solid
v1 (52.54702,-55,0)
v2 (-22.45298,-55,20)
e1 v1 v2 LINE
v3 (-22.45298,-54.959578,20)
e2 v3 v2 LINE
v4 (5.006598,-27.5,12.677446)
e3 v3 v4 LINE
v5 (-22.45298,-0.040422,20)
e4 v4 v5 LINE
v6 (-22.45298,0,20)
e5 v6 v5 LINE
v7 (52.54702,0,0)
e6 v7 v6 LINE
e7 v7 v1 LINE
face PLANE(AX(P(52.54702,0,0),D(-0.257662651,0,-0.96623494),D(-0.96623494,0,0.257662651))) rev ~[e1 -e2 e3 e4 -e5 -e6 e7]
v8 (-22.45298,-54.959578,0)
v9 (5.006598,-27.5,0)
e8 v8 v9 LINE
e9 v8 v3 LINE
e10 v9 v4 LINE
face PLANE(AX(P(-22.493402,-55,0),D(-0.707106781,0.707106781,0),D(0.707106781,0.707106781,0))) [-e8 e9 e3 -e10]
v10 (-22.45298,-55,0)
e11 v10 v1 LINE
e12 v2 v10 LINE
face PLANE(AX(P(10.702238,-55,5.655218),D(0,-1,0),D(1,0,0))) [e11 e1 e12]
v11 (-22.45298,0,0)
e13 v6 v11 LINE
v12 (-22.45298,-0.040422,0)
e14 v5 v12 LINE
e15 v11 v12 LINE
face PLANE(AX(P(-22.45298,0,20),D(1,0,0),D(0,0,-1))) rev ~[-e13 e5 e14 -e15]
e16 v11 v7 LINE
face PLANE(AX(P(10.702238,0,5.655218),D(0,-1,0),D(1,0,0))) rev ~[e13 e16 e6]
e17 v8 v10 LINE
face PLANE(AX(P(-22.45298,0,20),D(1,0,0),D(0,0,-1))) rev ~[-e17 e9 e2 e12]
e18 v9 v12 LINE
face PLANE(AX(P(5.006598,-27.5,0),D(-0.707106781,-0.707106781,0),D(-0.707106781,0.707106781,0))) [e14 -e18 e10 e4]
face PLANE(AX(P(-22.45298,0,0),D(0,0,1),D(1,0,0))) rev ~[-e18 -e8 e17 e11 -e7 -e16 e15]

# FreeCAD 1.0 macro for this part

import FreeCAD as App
import Part
import Sketcher
from FreeCAD import Vector
Q = App.Units.Quantity


def add_polygon(sketch, points):
    """Adds a closed chain of lines whose ends are joined by coincident constraints."""
    first, n = sketch.GeometryCount, len(points)
    for a, b in zip(points, points[1:] + points[:1]):
        sketch.addGeometry(Part.LineSegment(App.Vector(*a, 0), App.Vector(*b, 0)), False)
    for i in range(n):
        sketch.addConstraint(Sketcher.Constraint("Coincident", first + i, 2, first + (i + 1) % n, 1))

doc = App.newDocument("Part")
body = doc.addObject("PartDesign::Body", "Body")

# Sketch on XZ plane
sketch1 = body.newObject("Sketcher::SketchObject", "Sketch")
sketch1.AttachmentSupport = (doc.getObject("XZ_Plane"), [""])
sketch1.MapMode = "FlatFace"
add_polygon(sketch1, [(-22.45298, 20), (-22.45298, 0), (52.54702, 0)])  # lines 0-2
sketch1.addConstraint([
    Sketcher.Constraint("Vertical", 0),
    Sketcher.Constraint("Horizontal", 1),
    Sketcher.Constraint("PointOnObject", 0, 2, -1),
    Sketcher.Constraint("DistanceX", 1, 1, 1, 2, Q("75 mm")),
    Sketcher.Constraint("DistanceY", 0, 2, 0, 1, Q("20 mm")),
    Sketcher.Constraint("DistanceX", 0, 2, -1, 1, Q("22.45298 mm")),
])
pad1 = body.newObject("PartDesign::Pad", "Pad")
pad1.Profile = sketch1
pad1.Length = 55

# Sketch on XY plane
sketch2 = body.newObject("Sketcher::SketchObject", "Sketch001")
sketch2.AttachmentSupport = (doc.getObject("XY_Plane"), [""])
sketch2.MapMode = "FlatFace"
add_polygon(sketch2, [(-22.493402, 0), (-22.493402, -55), (5.006598, -27.5)])  # lines 0-2
sketch2.addConstraint([
    Sketcher.Constraint("Vertical", 0),
    Sketcher.Constraint("PointOnObject", 2, 2, -1),
    Sketcher.Constraint("Perpendicular", 1, 2),
    Sketcher.Constraint("Equal", 1, 2),
    Sketcher.Constraint("DistanceY", 0, 2, 0, 1, Q("55 mm")),
    Sketcher.Constraint("DistanceX", 0, 2, -1, 1, Q("22.493402 mm")),
])
pocket1 = body.newObject("PartDesign::Pocket", "Pocket")
pocket1.Profile = sketch2
pocket1.Length = 20
pocket1.Reversed = True

doc.recompute()
